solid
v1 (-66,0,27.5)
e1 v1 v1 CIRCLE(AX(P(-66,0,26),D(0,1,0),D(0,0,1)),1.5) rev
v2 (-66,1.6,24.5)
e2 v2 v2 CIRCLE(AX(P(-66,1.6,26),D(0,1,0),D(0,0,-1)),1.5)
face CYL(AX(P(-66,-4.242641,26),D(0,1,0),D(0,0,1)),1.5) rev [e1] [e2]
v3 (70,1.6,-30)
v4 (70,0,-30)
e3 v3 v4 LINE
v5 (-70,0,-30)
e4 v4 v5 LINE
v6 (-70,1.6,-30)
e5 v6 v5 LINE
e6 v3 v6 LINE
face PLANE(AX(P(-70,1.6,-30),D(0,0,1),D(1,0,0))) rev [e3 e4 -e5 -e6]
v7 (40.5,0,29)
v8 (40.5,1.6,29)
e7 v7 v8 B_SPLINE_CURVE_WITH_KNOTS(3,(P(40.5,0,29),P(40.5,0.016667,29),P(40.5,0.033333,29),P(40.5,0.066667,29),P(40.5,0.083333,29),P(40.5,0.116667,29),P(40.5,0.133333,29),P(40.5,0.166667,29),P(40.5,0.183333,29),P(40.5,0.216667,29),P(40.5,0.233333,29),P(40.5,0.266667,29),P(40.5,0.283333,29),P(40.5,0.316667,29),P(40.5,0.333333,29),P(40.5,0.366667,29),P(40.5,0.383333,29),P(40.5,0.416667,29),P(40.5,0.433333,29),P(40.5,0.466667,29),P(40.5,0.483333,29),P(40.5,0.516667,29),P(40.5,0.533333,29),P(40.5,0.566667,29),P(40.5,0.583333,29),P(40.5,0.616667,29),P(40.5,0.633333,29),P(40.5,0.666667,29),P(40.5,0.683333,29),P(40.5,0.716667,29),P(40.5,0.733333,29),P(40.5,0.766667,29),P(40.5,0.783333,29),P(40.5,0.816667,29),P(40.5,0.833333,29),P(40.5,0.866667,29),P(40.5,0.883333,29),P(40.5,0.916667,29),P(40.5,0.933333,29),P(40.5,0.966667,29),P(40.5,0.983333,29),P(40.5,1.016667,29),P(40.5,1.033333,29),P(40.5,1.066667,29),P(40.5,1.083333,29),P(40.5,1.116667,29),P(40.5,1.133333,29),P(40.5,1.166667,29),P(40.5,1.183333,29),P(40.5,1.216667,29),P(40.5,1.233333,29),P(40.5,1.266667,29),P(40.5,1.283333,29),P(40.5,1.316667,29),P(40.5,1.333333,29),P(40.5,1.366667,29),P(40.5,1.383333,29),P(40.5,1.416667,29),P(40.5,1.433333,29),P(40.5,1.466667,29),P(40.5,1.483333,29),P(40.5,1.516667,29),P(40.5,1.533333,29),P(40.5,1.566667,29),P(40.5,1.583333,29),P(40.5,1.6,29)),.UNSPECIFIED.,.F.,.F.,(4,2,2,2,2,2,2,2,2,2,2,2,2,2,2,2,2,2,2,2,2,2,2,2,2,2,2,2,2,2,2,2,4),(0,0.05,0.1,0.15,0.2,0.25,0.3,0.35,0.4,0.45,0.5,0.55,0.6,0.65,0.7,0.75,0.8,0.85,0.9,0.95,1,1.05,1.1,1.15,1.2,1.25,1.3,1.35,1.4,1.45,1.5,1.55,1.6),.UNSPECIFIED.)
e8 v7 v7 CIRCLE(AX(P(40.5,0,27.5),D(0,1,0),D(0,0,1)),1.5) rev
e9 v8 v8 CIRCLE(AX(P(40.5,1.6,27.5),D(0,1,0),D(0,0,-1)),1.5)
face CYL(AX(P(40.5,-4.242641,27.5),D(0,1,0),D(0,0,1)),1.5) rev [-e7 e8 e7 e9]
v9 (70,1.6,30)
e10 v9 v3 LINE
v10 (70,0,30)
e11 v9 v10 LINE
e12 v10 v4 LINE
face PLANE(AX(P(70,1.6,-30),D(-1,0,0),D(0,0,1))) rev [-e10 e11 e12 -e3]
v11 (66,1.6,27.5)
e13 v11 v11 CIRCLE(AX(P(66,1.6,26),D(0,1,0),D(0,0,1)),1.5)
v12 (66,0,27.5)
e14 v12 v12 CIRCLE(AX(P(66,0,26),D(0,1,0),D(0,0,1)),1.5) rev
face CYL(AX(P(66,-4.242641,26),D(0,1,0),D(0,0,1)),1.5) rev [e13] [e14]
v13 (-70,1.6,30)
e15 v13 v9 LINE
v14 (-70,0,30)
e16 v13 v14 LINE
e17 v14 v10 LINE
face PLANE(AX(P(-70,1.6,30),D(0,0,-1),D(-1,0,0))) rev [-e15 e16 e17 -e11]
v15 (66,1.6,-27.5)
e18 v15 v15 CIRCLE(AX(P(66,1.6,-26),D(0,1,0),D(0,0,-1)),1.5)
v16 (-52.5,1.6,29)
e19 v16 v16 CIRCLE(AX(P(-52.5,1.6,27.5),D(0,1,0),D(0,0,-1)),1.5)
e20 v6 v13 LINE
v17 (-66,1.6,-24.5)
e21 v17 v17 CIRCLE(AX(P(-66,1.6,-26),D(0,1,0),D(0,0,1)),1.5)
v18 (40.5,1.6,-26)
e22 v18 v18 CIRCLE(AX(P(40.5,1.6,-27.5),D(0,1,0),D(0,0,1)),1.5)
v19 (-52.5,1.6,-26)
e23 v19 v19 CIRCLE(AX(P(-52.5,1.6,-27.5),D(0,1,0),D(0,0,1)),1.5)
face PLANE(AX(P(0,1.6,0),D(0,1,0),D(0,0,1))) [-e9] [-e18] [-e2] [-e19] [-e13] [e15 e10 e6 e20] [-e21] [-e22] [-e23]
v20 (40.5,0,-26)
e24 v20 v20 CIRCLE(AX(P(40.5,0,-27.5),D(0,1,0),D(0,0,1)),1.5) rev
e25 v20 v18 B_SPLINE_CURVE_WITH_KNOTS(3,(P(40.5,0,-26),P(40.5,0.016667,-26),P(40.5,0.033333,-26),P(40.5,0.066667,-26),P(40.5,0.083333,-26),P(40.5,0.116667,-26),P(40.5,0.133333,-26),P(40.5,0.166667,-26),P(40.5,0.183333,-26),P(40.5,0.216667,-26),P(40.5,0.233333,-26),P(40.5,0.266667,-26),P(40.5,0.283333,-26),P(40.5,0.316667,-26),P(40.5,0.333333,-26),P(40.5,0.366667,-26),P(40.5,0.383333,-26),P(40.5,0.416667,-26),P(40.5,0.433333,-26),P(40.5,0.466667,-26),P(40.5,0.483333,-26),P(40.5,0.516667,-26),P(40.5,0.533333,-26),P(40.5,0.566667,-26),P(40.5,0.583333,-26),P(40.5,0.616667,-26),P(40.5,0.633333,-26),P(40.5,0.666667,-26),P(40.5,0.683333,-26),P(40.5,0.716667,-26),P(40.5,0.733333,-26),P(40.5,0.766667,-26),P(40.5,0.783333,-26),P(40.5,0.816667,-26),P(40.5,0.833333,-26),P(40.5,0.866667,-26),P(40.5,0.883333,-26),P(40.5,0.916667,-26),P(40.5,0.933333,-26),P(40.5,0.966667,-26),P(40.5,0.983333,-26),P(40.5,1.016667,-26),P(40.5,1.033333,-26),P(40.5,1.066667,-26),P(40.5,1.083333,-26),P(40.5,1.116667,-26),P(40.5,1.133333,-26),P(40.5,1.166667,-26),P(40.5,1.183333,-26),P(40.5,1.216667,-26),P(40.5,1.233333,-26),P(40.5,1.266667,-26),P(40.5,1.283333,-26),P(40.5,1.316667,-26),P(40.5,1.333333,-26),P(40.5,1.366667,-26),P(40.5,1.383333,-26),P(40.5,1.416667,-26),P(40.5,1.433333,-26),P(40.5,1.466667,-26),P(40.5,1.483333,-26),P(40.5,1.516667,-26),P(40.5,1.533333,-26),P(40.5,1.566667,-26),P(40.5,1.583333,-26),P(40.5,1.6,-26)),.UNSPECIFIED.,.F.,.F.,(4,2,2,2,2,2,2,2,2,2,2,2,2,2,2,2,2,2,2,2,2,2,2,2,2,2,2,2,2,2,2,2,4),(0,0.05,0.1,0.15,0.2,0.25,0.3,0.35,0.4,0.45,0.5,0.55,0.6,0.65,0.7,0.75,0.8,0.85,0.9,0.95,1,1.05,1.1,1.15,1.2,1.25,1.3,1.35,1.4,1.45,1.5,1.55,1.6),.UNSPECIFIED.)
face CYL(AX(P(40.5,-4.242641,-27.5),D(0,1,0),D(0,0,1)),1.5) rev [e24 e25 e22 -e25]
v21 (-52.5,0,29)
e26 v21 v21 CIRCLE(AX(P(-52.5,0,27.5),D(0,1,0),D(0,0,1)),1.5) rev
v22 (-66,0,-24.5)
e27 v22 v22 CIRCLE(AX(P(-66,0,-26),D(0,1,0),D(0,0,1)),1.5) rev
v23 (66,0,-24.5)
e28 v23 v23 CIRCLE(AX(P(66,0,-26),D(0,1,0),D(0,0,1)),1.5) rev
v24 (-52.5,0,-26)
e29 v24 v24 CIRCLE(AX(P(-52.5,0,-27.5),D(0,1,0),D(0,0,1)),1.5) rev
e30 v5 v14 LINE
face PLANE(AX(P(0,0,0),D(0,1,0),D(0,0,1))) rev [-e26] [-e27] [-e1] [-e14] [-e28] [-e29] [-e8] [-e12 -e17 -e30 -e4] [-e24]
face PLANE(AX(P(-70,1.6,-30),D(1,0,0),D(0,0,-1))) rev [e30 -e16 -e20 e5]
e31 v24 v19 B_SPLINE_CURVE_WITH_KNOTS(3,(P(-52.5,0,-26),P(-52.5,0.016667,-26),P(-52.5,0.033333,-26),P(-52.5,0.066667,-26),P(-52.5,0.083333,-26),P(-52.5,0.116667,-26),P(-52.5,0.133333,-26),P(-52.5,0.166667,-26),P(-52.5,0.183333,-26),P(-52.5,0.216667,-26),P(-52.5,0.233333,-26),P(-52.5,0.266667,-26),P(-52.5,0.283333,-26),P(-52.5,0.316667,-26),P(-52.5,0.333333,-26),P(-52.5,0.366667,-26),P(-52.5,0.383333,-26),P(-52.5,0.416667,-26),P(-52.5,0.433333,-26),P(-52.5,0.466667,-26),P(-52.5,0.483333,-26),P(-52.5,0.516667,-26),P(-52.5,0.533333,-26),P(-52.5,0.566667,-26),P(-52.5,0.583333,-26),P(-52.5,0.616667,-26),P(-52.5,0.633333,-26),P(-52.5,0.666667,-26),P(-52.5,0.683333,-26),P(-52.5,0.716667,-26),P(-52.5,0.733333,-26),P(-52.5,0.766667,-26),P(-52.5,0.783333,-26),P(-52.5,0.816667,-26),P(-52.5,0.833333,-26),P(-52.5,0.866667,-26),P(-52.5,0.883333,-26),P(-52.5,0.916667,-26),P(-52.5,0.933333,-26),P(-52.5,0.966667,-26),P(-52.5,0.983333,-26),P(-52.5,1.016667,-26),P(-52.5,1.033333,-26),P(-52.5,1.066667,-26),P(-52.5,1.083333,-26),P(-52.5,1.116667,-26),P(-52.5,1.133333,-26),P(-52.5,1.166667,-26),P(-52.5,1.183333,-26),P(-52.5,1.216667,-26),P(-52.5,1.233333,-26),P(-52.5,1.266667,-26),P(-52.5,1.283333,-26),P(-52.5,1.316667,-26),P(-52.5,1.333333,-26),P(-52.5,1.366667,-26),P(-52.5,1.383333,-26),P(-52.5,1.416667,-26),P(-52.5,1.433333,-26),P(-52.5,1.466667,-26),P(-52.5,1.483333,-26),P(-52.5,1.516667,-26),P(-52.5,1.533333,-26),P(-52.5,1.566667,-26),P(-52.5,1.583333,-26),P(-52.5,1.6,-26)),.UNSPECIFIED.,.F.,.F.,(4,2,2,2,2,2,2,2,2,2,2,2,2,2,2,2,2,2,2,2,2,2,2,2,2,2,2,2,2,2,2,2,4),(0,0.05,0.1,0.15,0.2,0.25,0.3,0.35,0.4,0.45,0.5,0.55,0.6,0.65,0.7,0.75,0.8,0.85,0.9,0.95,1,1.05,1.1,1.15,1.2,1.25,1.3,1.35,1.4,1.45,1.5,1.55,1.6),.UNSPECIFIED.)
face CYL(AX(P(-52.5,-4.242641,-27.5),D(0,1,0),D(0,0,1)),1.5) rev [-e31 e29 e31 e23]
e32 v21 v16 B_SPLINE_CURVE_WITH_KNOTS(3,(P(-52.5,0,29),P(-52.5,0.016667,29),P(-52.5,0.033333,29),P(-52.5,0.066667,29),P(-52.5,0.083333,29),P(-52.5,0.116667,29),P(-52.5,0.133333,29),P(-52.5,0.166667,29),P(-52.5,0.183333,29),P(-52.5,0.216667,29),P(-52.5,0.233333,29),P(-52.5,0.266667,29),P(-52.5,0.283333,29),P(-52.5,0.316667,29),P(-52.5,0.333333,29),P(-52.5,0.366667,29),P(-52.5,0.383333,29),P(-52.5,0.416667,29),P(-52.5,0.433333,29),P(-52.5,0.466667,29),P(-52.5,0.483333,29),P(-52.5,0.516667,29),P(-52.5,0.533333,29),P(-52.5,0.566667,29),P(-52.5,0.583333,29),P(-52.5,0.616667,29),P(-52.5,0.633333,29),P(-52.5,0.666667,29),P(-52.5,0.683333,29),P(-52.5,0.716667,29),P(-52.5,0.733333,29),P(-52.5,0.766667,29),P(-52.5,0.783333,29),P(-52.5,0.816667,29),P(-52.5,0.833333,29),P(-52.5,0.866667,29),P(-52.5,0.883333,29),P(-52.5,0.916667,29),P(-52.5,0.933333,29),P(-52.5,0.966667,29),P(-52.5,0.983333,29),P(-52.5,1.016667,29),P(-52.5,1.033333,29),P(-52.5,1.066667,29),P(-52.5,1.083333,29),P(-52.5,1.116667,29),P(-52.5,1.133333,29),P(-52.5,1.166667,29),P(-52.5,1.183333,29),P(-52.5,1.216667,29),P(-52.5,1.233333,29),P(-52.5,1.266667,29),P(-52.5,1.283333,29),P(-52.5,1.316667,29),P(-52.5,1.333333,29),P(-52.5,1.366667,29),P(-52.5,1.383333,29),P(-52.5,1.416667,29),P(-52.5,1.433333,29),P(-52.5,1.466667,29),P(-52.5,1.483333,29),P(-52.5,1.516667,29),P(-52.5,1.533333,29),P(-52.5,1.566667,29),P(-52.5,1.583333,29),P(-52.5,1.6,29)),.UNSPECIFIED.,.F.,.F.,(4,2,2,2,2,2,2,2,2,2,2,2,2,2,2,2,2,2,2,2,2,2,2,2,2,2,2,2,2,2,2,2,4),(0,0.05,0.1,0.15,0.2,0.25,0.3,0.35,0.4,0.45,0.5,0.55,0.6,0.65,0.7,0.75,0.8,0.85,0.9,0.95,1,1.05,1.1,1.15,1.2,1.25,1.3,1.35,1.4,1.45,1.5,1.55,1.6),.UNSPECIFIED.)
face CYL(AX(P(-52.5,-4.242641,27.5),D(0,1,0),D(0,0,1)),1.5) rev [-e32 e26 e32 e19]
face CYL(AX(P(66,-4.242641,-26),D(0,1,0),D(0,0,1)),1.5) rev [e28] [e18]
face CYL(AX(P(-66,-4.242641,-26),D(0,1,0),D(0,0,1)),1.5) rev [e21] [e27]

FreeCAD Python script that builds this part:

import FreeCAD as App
import Part
import Sketcher
Q = App.Units.Quantity

doc = App.newDocument("Part")
params = doc.addObject("Spreadsheet::Sheet", "Params")
for row, (alias, value) in enumerate([
    ("sketch1_width", "140 mm"),
    ("sketch1_height", "60 mm"),
    ("pad1_length", "1.6 mm"),
    ("sketch2_diameter", "3 mm"),
    ("pocket1_length", "1.6 mm"),
    ("sketch3_diameter", "3 mm"),
    ("pocket2_length", "1.6 mm"),
], start=1):
    params.set(f"A{row}", alias)
    params.set(f"B{row}", "=" + value)
    params.setAlias(f"B{row}", alias)

body = doc.addObject("PartDesign::Body", "Body")

# Sketch on XZ plane
sketch1 = body.newObject("Sketcher::SketchObject", "Sketch")
sketch1.AttachmentSupport = (doc.getObject("XZ_Plane"), [""])
sketch1.MapMode = "FlatFace"
sketch1.addGeometry([
    Part.LineSegment(App.Vector(-70, -30, 0), App.Vector(-70, 30, 0)),
    Part.LineSegment(App.Vector(-70, 30, 0), App.Vector(70, 30, 0)),
    Part.LineSegment(App.Vector(70, 30, 0), App.Vector(70, -30, 0)),
    Part.LineSegment(App.Vector(70, -30, 0), App.Vector(-70, -30, 0)),
], False)
sketch1.addConstraint([
    Sketcher.Constraint("Coincident", 0, 2, 1, 1),
    Sketcher.Constraint("Coincident", 1, 2, 2, 1),
    Sketcher.Constraint("Coincident", 2, 2, 3, 1),
    Sketcher.Constraint("Coincident", 3, 2, 0, 1),
    Sketcher.Constraint("Vertical", 0),
    Sketcher.Constraint("Horizontal", 1),
    Sketcher.Constraint("Vertical", 2),
    Sketcher.Constraint("Horizontal", 3),
    Sketcher.Constraint("Symmetric", 0, 2, 2, 2, -1, 1),
    Sketcher.Constraint("DistanceX", 1, 1, 1, 2, Q("140 mm")),
    Sketcher.Constraint("DistanceY", 0, 1, 0, 2, Q("60 mm")),
])
sketch1.setExpression("Constraints[9]", "Params.sketch1_width")
sketch1.setExpression("Constraints[10]", "Params.sketch1_height")
pad1 = body.newObject("PartDesign::Pad", "Pad")
pad1.Profile = sketch1
pad1.setExpression("Length", "Params.pad1_length")
pad1.Reversed = True

# Sketch on XZ plane
sketch2 = body.newObject("Sketcher::SketchObject", "Sketch001")
sketch2.AttachmentSupport = (doc.getObject("XZ_Plane"), [""])
sketch2.MapMode = "FlatFace"
sketch2.AttachmentOffset = App.Placement(App.Vector(0, 0, -1.6), App.Rotation())
sketch2.addGeometry([
    Part.Circle(App.Vector(-66, -26, 0), App.Vector(0, 0, 1), 1.5),
    Part.Circle(App.Vector(-66, 26, 0), App.Vector(0, 0, 1), 1.5),
    Part.Circle(App.Vector(66, 26, 0), App.Vector(0, 0, 1), 1.5),
    Part.Circle(App.Vector(66, -26, 0), App.Vector(0, 0, 1), 1.5),
], False)
sketch2.addConstraint([
    Sketcher.Constraint("Equal", 0, 1),
    Sketcher.Constraint("Equal", 1, 2),
    Sketcher.Constraint("Equal", 2, 3),
    Sketcher.Constraint("Symmetric", 0, 3, 2, 3, -1, 1),
    Sketcher.Constraint("Symmetric", 1, 3, 3, 3, -1, 1),
    Sketcher.Constraint("Symmetric", 1, 3, 2, 3, -2),
    Sketcher.Constraint("Diameter", 0, Q("3 mm")),
    Sketcher.Constraint("DistanceX", 0, 3, -1, 1, Q("66 mm")),
    Sketcher.Constraint("DistanceY", 0, 3, -1, 1, Q("26 mm")),
])
sketch2.setExpression("Constraints[6]", "Params.sketch2_diameter")
pocket1 = body.newObject("PartDesign::Pocket", "Pocket")
pocket1.Profile = sketch2
pocket1.setExpression("Length", "Params.pocket1_length")
pocket1.Reversed = True

# Sketch on XZ plane
sketch3 = body.newObject("Sketcher::SketchObject", "Sketch002")
sketch3.AttachmentSupport = (doc.getObject("XZ_Plane"), [""])
sketch3.MapMode = "FlatFace"
sketch3.AttachmentOffset = App.Placement(App.Vector(0, 0, -1.6), App.Rotation())
sketch3.addGeometry([
    Part.Circle(App.Vector(-52.5, -27.5, 0), App.Vector(0, 0, 1), 1.5),
    Part.Circle(App.Vector(-52.5, 27.5, 0), App.Vector(0, 0, 1), 1.5),
    Part.Circle(App.Vector(40.5, -27.5, 0), App.Vector(0, 0, 1), 1.5),
    Part.Circle(App.Vector(40.5, 27.5, 0), App.Vector(0, 0, 1), 1.5),
], False)
sketch3.addConstraint([
    Sketcher.Constraint("Equal", 0, 1),
    Sketcher.Constraint("Equal", 1, 2),
    Sketcher.Constraint("Equal", 2, 3),
    Sketcher.Constraint("Symmetric", 0, 3, 1, 3, -1),
    Sketcher.Constraint("Symmetric", 2, 3, 3, 3, -1),
    Sketcher.Constraint("Horizontal", 0, 3, 2, 3),
    Sketcher.Constraint("Diameter", 0, Q("3 mm")),
    Sketcher.Constraint("DistanceY", 0, 3, 1, 3, Q("55 mm")),
    Sketcher.Constraint("DistanceX", 0, 3, 2, 3, Q("93 mm")),
    Sketcher.Constraint("DistanceX", 0, 3, -1, 1, Q("52.5 mm")),
])
sketch3.setExpression("Constraints[6]", "Params.sketch3_diameter")
pocket2 = body.newObject("PartDesign::Pocket", "Pocket001")
pocket2.Profile = sketch3
pocket2.setExpression("Length", "Params.pocket2_length")
pocket2.Reversed = True

doc.recompute()
